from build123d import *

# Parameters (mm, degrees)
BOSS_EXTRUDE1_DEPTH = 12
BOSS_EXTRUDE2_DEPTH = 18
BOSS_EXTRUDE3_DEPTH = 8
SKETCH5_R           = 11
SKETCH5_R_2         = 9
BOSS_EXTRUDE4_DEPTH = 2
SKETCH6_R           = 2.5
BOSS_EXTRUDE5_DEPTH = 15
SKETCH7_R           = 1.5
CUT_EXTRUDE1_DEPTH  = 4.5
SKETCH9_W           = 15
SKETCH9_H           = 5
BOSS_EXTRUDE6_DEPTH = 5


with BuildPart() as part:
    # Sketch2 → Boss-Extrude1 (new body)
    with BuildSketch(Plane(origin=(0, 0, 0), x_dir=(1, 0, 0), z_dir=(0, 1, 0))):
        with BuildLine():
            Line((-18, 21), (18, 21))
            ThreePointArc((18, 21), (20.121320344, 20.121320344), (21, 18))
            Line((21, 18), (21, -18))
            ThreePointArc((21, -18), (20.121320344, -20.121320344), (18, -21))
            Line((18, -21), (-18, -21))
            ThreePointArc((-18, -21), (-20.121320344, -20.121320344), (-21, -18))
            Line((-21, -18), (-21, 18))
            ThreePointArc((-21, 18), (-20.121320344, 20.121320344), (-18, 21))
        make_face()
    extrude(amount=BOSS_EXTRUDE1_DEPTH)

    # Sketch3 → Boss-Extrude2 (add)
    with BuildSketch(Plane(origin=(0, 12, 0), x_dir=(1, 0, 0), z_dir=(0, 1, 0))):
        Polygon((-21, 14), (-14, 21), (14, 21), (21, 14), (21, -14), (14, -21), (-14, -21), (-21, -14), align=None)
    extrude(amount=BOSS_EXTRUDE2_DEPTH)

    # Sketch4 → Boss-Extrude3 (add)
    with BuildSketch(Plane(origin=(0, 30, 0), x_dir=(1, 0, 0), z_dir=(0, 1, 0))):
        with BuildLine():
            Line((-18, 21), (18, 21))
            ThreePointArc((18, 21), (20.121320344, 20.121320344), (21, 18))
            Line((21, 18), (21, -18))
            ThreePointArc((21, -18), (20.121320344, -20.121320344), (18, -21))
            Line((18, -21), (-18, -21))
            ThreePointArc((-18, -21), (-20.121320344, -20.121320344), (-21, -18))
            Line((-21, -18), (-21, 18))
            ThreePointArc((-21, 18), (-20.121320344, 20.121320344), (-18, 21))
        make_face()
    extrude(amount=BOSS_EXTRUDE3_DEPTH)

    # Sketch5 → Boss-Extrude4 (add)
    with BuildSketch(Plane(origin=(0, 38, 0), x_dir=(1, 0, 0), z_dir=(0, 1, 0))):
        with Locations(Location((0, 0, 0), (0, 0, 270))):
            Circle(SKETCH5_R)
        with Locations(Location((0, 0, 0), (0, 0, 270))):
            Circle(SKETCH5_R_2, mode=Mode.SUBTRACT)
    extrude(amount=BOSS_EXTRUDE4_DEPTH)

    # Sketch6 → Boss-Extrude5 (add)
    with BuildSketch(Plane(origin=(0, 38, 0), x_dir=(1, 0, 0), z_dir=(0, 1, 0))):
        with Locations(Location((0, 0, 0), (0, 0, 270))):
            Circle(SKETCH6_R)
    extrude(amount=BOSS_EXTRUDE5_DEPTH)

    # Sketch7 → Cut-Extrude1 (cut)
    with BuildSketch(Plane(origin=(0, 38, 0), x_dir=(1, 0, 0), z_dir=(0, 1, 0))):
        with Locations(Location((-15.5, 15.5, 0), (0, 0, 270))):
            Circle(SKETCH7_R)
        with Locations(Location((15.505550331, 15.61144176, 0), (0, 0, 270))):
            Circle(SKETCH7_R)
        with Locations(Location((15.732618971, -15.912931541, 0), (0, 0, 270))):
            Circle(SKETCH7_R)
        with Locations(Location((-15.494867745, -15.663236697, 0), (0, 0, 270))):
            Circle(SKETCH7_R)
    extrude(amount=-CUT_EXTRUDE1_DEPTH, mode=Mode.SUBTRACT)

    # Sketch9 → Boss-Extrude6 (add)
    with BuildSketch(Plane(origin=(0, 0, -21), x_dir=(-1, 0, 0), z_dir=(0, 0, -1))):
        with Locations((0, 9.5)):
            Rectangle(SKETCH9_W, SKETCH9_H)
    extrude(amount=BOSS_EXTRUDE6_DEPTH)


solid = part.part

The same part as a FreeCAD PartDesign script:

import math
import FreeCAD as App
import Part
import Sketcher

V = App.Vector
Q = App.Units.Quantity

doc = App.newDocument("Part")
body = doc.addObject("PartDesign::Body", "Body")

sketch1 = body.newObject("Sketcher::SketchObject", "Sketch")
sketch1.AttachmentSupport = (doc.getObject("XZ_Plane"), [""])
sketch1.MapMode = "FlatFace"
sketch1.addGeometry([
    Part.LineSegment(V(18, -21, 0), V(-18, -21, 0)),
    Part.ArcOfCircle(Part.Circle(V(-18, -18, 0), V(0, 0, 1), 3), math.radians(180), math.radians(270)),
    Part.LineSegment(V(-21, -18, 0), V(-21, 18, 0)),
    Part.ArcOfCircle(Part.Circle(V(-18, 18, 0), V(0, 0, 1), 3), math.radians(90), math.radians(180)),
    Part.LineSegment(V(-18, 21, 0), V(18, 21, 0)),
    Part.ArcOfCircle(Part.Circle(V(18, 18, 0), V(0, 0, 1), 3), math.radians(0), math.radians(90)),
    Part.LineSegment(V(21, 18, 0), V(21, -18, 0)),
    Part.ArcOfCircle(Part.Circle(V(18, -18, 0), V(0, 0, 1), 3), math.radians(-90), math.radians(0)),
], False)
sketch1.addConstraint([
    Sketcher.Constraint("Tangent", 0, 2, 1, 2),
    Sketcher.Constraint("Tangent", 1, 1, 2, 1),
    Sketcher.Constraint("Tangent", 2, 2, 3, 2),
    Sketcher.Constraint("Tangent", 3, 1, 4, 1),
    Sketcher.Constraint("Tangent", 4, 2, 5, 2),
    Sketcher.Constraint("Tangent", 5, 1, 6, 1),
    Sketcher.Constraint("Tangent", 6, 2, 7, 2),
    Sketcher.Constraint("Tangent", 7, 1, 0, 1),
    Sketcher.Constraint("Horizontal", 0),
    Sketcher.Constraint("Vertical", 2),
    Sketcher.Constraint("Horizontal", 4),
    Sketcher.Constraint("Vertical", 6),
    Sketcher.Constraint("Equal", 1, 3),
    Sketcher.Constraint("Equal", 3, 5),
    Sketcher.Constraint("Equal", 5, 7),
    Sketcher.Constraint("Symmetric", 1, 3, 5, 3, -1, 1),
    Sketcher.Constraint("Equal", 4, 2),
    Sketcher.Constraint("Radius", 1, Q("3 mm")),
    Sketcher.Constraint("DistanceX", 0, 2, 0, 1, Q("36 mm")),
])
pad1 = body.newObject("PartDesign::Pad", "Pad")
pad1.Profile = sketch1
pad1.Length = 12
pad1.Reversed = True

sketch2 = body.newObject("Sketcher::SketchObject", "Sketch001")
sketch2.AttachmentSupport = (doc.getObject("XZ_Plane"), [""])
sketch2.MapMode = "FlatFace"
sketch2.AttachmentOffset = App.Placement(V(0, 0, -12), App.Rotation())
sketch2.addGeometry([
    Part.LineSegment(V(-14, -21, 0), V(-21, -14, 0)),
    Part.LineSegment(V(-21, -14, 0), V(-21, 14, 0)),
    Part.LineSegment(V(-21, 14, 0), V(-14, 21, 0)),
    Part.LineSegment(V(-14, 21, 0), V(14, 21, 0)),
    Part.LineSegment(V(14, 21, 0), V(21, 14, 0)),
    Part.LineSegment(V(21, 14, 0), V(21, -14, 0)),
    Part.LineSegment(V(21, -14, 0), V(14, -21, 0)),
    Part.LineSegment(V(14, -21, 0), V(-14, -21, 0)),
], False)
sketch2.addConstraint([
    Sketcher.Constraint("Coincident", 0, 2, 1, 1),
    Sketcher.Constraint("Coincident", 1, 2, 2, 1),
    Sketcher.Constraint("Coincident", 2, 2, 3, 1),
    Sketcher.Constraint("Coincident", 3, 2, 4, 1),
    Sketcher.Constraint("Coincident", 4, 2, 5, 1),
    Sketcher.Constraint("Coincident", 5, 2, 6, 1),
    Sketcher.Constraint("Coincident", 6, 2, 7, 1),
    Sketcher.Constraint("Coincident", 7, 2, 0, 1),
    Sketcher.Constraint("Vertical", 1),
    Sketcher.Constraint("Horizontal", 3),
    Sketcher.Constraint("Vertical", 5),
    Sketcher.Constraint("Horizontal", 7),
    Sketcher.Constraint("Symmetric", 0, 2, 4, 2, -1, 1),
    Sketcher.Constraint("Symmetric", 2, 2, 6, 2, -1, 1),
    Sketcher.Constraint("Perpendicular", 0, 2),
    Sketcher.Constraint("Perpendicular", 2, 4),
    Sketcher.Constraint("Perpendicular", 4, 6),
    Sketcher.Constraint("Horizontal", 1, 2, 4, 2),
    Sketcher.Constraint("Vertical", 3, 2, 6, 2),
    Sketcher.Constraint("Equal", 7, 1),
    Sketcher.Constraint("DistanceX", 3, 1, 3, 2, Q("28 mm")),
    Sketcher.Constraint("DistanceX", 0, 2, -1, 1, Q("21 mm")),
])
pad2 = body.newObject("PartDesign::Pad", "Pad001")
pad2.Profile = sketch2
pad2.Length = 18
pad2.Reversed = True

sketch3 = body.newObject("Sketcher::SketchObject", "Sketch002")
sketch3.AttachmentSupport = (doc.getObject("XZ_Plane"), [""])
sketch3.MapMode = "FlatFace"
sketch3.AttachmentOffset = App.Placement(V(0, 0, -30), App.Rotation())
sketch3.addGeometry([
    Part.LineSegment(V(18, -21, 0), V(-18, -21, 0)),
    Part.ArcOfCircle(Part.Circle(V(-18, -18, 0), V(0, 0, 1), 3), math.radians(180), math.radians(270)),
    Part.LineSegment(V(-21, -18, 0), V(-21, 18, 0)),
    Part.ArcOfCircle(Part.Circle(V(-18, 18, 0), V(0, 0, 1), 3), math.radians(90), math.radians(180)),
    Part.LineSegment(V(-18, 21, 0), V(18, 21, 0)),
    Part.ArcOfCircle(Part.Circle(V(18, 18, 0), V(0, 0, 1), 3), math.radians(0), math.radians(90)),
    Part.LineSegment(V(21, 18, 0), V(21, -18, 0)),
    Part.ArcOfCircle(Part.Circle(V(18, -18, 0), V(0, 0, 1), 3), math.radians(-90), math.radians(0)),
], False)
sketch3.addConstraint([
    Sketcher.Constraint("Tangent", 0, 2, 1, 2),
    Sketcher.Constraint("Tangent", 1, 1, 2, 1),
    Sketcher.Constraint("Tangent", 2, 2, 3, 2),
    Sketcher.Constraint("Tangent", 3, 1, 4, 1),
    Sketcher.Constraint("Tangent", 4, 2, 5, 2),
    Sketcher.Constraint("Tangent", 5, 1, 6, 1),
    Sketcher.Constraint("Tangent", 6, 2, 7, 2),
    Sketcher.Constraint("Tangent", 7, 1, 0, 1),
    Sketcher.Constraint("Horizontal", 0),
    Sketcher.Constraint("Vertical", 2),
    Sketcher.Constraint("Horizontal", 4),
    Sketcher.Constraint("Vertical", 6),
    Sketcher.Constraint("Equal", 1, 3),
    Sketcher.Constraint("Equal", 3, 5),
    Sketcher.Constraint("Equal", 5, 7),
    Sketcher.Constraint("Symmetric", 1, 3, 5, 3, -1, 1),
    Sketcher.Constraint("Equal", 4, 2),
    Sketcher.Constraint("Radius", 1, Q("3 mm")),
    Sketcher.Constraint("DistanceX", 0, 2, 0, 1, Q("36 mm")),
])
pad3 = body.newObject("PartDesign::Pad", "Pad002")
pad3.Profile = sketch3
pad3.Length = 8
pad3.Reversed = True

sketch4 = body.newObject("Sketcher::SketchObject", "Sketch003")
sketch4.AttachmentSupport = (doc.getObject("XZ_Plane"), [""])
sketch4.MapMode = "FlatFace"
sketch4.AttachmentOffset = App.Placement(V(0, 0, -38), App.Rotation())
sketch4.addGeometry([
    Part.Circle(V(0, 0, 0), V(0, 0, 1), 11),
    Part.Circle(V(0, 0, 0), V(0, 0, 1), 9),
], False)
sketch4.addConstraint([
    Sketcher.Constraint("Coincident", 0, 3, -1, 1),
    Sketcher.Constraint("Coincident", 1, 3, -1, 1),
    Sketcher.Constraint("Diameter", 0, Q("22 mm")),
    Sketcher.Constraint("Diameter", 1, Q("18 mm")),
])
pad4 = body.newObject("PartDesign::Pad", "Pad003")
pad4.Profile = sketch4
pad4.Length = 2
pad4.Reversed = True

sketch5 = body.newObject("Sketcher::SketchObject", "Sketch004")
sketch5.AttachmentSupport = (doc.getObject("XZ_Plane"), [""])
sketch5.MapMode = "FlatFace"
sketch5.AttachmentOffset = App.Placement(V(0, 0, -38), App.Rotation())
sketch5.addGeometry(Part.Circle(V(0, 0, 0), V(0, 0, 1), 2.5), False)
sketch5.addConstraint([
    Sketcher.Constraint("Coincident", 0, 3, -1, 1),
    Sketcher.Constraint("Diameter", 0, Q("5 mm")),
])
pad5 = body.newObject("PartDesign::Pad", "Pad004")
pad5.Profile = sketch5
pad5.Length = 15
pad5.Reversed = True

sketch6 = body.newObject("Sketcher::SketchObject", "Sketch005")
sketch6.AttachmentSupport = (doc.getObject("XZ_Plane"), [""])
sketch6.MapMode = "FlatFace"
sketch6.AttachmentOffset = App.Placement(V(0, 0, -38), App.Rotation())
sketch6.addGeometry([
    Part.Circle(V(-15.5, -15.5, 0), V(0, 0, 1), 1.5),
    Part.Circle(V(15.5, -15.6, 0), V(0, 0, 1), 1.5),
    Part.Circle(V(15.7, 15.9, 0), V(0, 0, 1), 1.5),
    Part.Circle(V(-15.5, 15.7, 0), V(0, 0, 1), 1.5),
], False)
sketch6.addConstraint([
    Sketcher.Constraint("Equal", 0, 1),
    Sketcher.Constraint("Equal", 1, 2),
    Sketcher.Constraint("Equal", 2, 3),
    Sketcher.Constraint("Diameter", 0, Q("3 mm")),
    Sketcher.Constraint("DistanceX", 0, 3, -1, 1, Q("15.5 mm")),
    Sketcher.Constraint("DistanceY", 0, 3, -1, 1, Q("15.5 mm")),
    Sketcher.Constraint("DistanceX", -1, 1, 1, 3, Q("15.50555 mm")),
    Sketcher.Constraint("DistanceY", 1, 3, -1, 1, Q("15.611442 mm")),
    Sketcher.Constraint("DistanceX", -1, 1, 2, 3, Q("15.732619 mm")),
    Sketcher.Constraint("DistanceY", -1, 1, 2, 3, Q("15.912932 mm")),
    Sketcher.Constraint("DistanceX", 3, 3, 1, 3, Q("31.000418 mm")),
    Sketcher.Constraint("DistanceY", 1, 3, 3, 3, Q("31.274678 mm")),
])
pocket1 = body.newObject("PartDesign::Pocket", "Pocket")
pocket1.Profile = sketch6
pocket1.Length = 4.5
pocket1.Reversed = True

sketch7 = body.newObject("Sketcher::SketchObject", "Sketch006")
sketch7.AttachmentSupport = (doc.getObject("XY_Plane"), [""])
sketch7.MapMode = "FlatFace"
sketch7.AttachmentOffset = App.Placement(V(0, 0, -21), App.Rotation())
sketch7.addGeometry([
    Part.LineSegment(V(8, 12, 0), V(8, 7, 0)),
    Part.LineSegment(V(8, 7, 0), V(-8, 7, 0)),
    Part.LineSegment(V(-8, 7, 0), V(-8, 12, 0)),
    Part.LineSegment(V(-8, 12, 0), V(8, 12, 0)),
], False)
sketch7.addConstraint([
    Sketcher.Constraint("Coincident", 0, 2, 1, 1),
    Sketcher.Constraint("Coincident", 1, 2, 2, 1),
    Sketcher.Constraint("Coincident", 2, 2, 3, 1),
    Sketcher.Constraint("Coincident", 3, 2, 0, 1),
    Sketcher.Constraint("Vertical", 0),
    Sketcher.Constraint("Horizontal", 1),
    Sketcher.Constraint("Vertical", 2),
    Sketcher.Constraint("Horizontal", 3),
    Sketcher.Constraint("DistanceX", 1, 2, 1, 1, Q("15 mm")),
    Sketcher.Constraint("DistanceY", 0, 2, 0, 1, Q("5 mm")),
    Sketcher.Constraint("DistanceY", -1, 1, 0, 2, Q("7 mm")),
    Sketcher.Constraint("DistanceX", -1, 1, 0, 2, Q("7.5 mm")),
])
pad6 = body.newObject("PartDesign::Pad", "Pad005")
pad6.Profile = sketch7
pad6.Length = 5
pad6.Reversed = True

doc.recompute()
